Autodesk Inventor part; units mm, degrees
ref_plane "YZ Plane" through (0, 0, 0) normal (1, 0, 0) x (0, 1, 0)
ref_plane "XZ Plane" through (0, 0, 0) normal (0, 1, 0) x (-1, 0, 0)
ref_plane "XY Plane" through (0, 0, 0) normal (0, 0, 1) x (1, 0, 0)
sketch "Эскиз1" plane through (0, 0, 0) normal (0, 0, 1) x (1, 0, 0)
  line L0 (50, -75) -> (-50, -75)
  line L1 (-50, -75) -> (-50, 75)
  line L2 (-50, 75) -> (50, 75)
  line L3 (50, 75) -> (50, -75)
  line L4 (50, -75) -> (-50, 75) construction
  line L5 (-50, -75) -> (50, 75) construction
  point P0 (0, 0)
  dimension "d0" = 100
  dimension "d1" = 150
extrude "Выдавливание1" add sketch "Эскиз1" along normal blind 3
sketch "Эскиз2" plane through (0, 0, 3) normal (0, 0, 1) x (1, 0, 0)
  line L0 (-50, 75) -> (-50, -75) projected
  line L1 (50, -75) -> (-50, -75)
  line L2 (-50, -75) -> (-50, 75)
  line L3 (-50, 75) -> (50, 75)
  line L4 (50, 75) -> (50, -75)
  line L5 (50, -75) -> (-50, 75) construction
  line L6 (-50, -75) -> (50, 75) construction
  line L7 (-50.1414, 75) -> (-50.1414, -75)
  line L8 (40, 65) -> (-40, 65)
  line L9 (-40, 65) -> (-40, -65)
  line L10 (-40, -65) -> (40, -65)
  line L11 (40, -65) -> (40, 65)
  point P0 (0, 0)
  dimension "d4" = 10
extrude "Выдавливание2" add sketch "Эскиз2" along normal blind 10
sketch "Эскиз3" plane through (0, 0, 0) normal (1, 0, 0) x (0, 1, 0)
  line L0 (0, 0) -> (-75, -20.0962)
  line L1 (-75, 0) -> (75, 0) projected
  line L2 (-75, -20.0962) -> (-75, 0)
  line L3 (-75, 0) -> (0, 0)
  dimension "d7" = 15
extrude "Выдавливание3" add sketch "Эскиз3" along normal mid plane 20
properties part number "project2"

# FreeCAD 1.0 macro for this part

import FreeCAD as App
import Part
import Sketcher

V = App.Vector
Q = App.Units.Quantity

doc = App.newDocument("Part")
params = doc.addObject("Spreadsheet::Sheet", "Params")
for row, (alias, value) in enumerate([
    ("sketch1_width", "100 mm"),
    ("sketch1_height", "150 mm"),
    ("pad1_length", "3 mm"),
    ("sketch2_width", "100 mm"),
    ("sketch2_height", "150 mm"),
    ("pad2_length", "10 mm"),
    ("sketch3_width", "75 mm"),
    ("pad3_length", "20 mm"),
], start=1):
    params.set(f"A{row}", alias)
    params.set(f"B{row}", "=" + value)
    params.setAlias(f"B{row}", alias)

body = doc.addObject("PartDesign::Body", "Body")

# Sketch on XY plane
sketch1 = body.newObject("Sketcher::SketchObject", "Sketch")
sketch1.AttachmentSupport = (doc.getObject("XY_Plane"), [""])
sketch1.MapMode = "FlatFace"
sketch1.addGeometry(Part.LineSegment(V(-50, -75, 0), V(50, -75, 0)), False)
sketch1.addGeometry(Part.LineSegment(V(50, -75, 0), V(50, 75, 0)), False)
sketch1.addGeometry(Part.LineSegment(V(50, 75, 0), V(-50, 75, 0)), False)
sketch1.addGeometry(Part.LineSegment(V(-50, 75, 0), V(-50, -75, 0)), False)
sketch1.addConstraint(Sketcher.Constraint("Coincident", 0, 2, 1, 1))
sketch1.addConstraint(Sketcher.Constraint("Coincident", 1, 2, 2, 1))
sketch1.addConstraint(Sketcher.Constraint("Coincident", 2, 2, 3, 1))
sketch1.addConstraint(Sketcher.Constraint("Coincident", 3, 2, 0, 1))
sketch1.addConstraint(Sketcher.Constraint("Horizontal", 0))
sketch1.addConstraint(Sketcher.Constraint("Vertical", 1))
sketch1.addConstraint(Sketcher.Constraint("Horizontal", 2))
sketch1.addConstraint(Sketcher.Constraint("Vertical", 3))
sketch1.addConstraint(Sketcher.Constraint("Symmetric", 0, 2, 2, 2, -1, 1))
sketch1.addConstraint(Sketcher.Constraint("DistanceX", 0, 1, 0, 2, 100.0))
sketch1.addConstraint(Sketcher.Constraint("DistanceY", 1, 1, 1, 2, 150.0))
sketch1.setExpression("Constraints[9]", "Params.sketch1_width")
sketch1.setExpression("Constraints[10]", "Params.sketch1_height")
pad1 = body.newObject("PartDesign::Pad", "Pad")
pad1.Profile = sketch1
pad1.setExpression("Length", "Params.pad1_length")

# Sketch on XY plane
sketch2 = body.newObject("Sketcher::SketchObject", "Sketch001")
sketch2.AttachmentSupport = (doc.getObject("XY_Plane"), [""])
sketch2.MapMode = "FlatFace"
sketch2.AttachmentOffset = App.Placement(V(0, 0, 3), App.Rotation())
sketch2.addGeometry(Part.LineSegment(V(50, 75, 0), V(-50, 75, 0)), False)
sketch2.addGeometry(Part.LineSegment(V(-50, 75, 0), V(-50, -75, 0)), False)
sketch2.addGeometry(Part.LineSegment(V(-50, -75, 0), V(50, -75, 0)), False)
sketch2.addGeometry(Part.LineSegment(V(50, -75, 0), V(50, 75, 0)), False)
sketch2.addGeometry(Part.LineSegment(V(-40, 65, 0), V(40, 65, 0)), False)
sketch2.addGeometry(Part.LineSegment(V(40, 65, 0), V(40, -65, 0)), False)
sketch2.addGeometry(Part.LineSegment(V(40, -65, 0), V(-40, -65, 0)), False)
sketch2.addGeometry(Part.LineSegment(V(-40, -65, 0), V(-40, 65, 0)), False)
sketch2.addConstraint(Sketcher.Constraint("Coincident", 0, 2, 1, 1))
sketch2.addConstraint(Sketcher.Constraint("Coincident", 1, 2, 2, 1))
sketch2.addConstraint(Sketcher.Constraint("Coincident", 2, 2, 3, 1))
sketch2.addConstraint(Sketcher.Constraint("Coincident", 3, 2, 0, 1))
sketch2.addConstraint(Sketcher.Constraint("Coincident", 4, 2, 5, 1))
sketch2.addConstraint(Sketcher.Constraint("Coincident", 5, 2, 6, 1))
sketch2.addConstraint(Sketcher.Constraint("Coincident", 6, 2, 7, 1))
sketch2.addConstraint(Sketcher.Constraint("Coincident", 7, 2, 4, 1))
sketch2.addConstraint(Sketcher.Constraint("Horizontal", 0))
sketch2.addConstraint(Sketcher.Constraint("Vertical", 1))
sketch2.addConstraint(Sketcher.Constraint("Horizontal", 2))
sketch2.addConstraint(Sketcher.Constraint("Vertical", 3))
sketch2.addConstraint(Sketcher.Constraint("Horizontal", 4))
sketch2.addConstraint(Sketcher.Constraint("Vertical", 5))
sketch2.addConstraint(Sketcher.Constraint("Horizontal", 6))
sketch2.addConstraint(Sketcher.Constraint("Vertical", 7))
sketch2.addConstraint(Sketcher.Constraint("Symmetric", 0, 2, 2, 2, -1, 1))
sketch2.addConstraint(Sketcher.Constraint("Symmetric", 4, 2, 6, 2, -1, 1))
sketch2.addConstraint(Sketcher.Constraint("DistanceX", 4, 2, 3, 2, 10.0))
sketch2.addConstraint(Sketcher.Constraint("DistanceY", 4, 2, 3, 2, 10.0))
sketch2.addConstraint(Sketcher.Constraint("DistanceX", 0, 2, 0, 1, 100.0))
sketch2.addConstraint(Sketcher.Constraint("DistanceY", 1, 2, 1, 1, 150.0))
sketch2.setExpression("Constraints[20]", "Params.sketch2_width")
sketch2.setExpression("Constraints[21]", "Params.sketch2_height")
pad2 = body.newObject("PartDesign::Pad", "Pad001")
pad2.Profile = sketch2
pad2.setExpression("Length", "Params.pad2_length")

# Sketch on YZ plane
sketch3 = body.newObject("Sketcher::SketchObject", "Sketch002")
sketch3.AttachmentSupport = (doc.getObject("YZ_Plane"), [""])
sketch3.MapMode = "FlatFace"
sketch3.addGeometry(Part.LineSegment(V(-75, -20, 0), V(0, 0, 0)), False)
sketch3.addGeometry(Part.LineSegment(V(0, 0, 0), V(-75, 0, 0)), False)
sketch3.addGeometry(Part.LineSegment(V(-75, 0, 0), V(-75, -20, 0)), False)
sketch3.addConstraint(Sketcher.Constraint("Coincident", 0, 2, 1, 1))
sketch3.addConstraint(Sketcher.Constraint("Coincident", 1, 2, 2, 1))
sketch3.addConstraint(Sketcher.Constraint("Coincident", 2, 2, 0, 1))
sketch3.addConstraint(Sketcher.Constraint("Horizontal", 1))
sketch3.addConstraint(Sketcher.Constraint("Vertical", 2))
sketch3.addConstraint(Sketcher.Constraint("Coincident", 0, 2, -1, 1))
sketch3.addConstraint(Sketcher.Constraint("Angle", 0, Q("15 deg")))
sketch3.addConstraint(Sketcher.Constraint("DistanceX", 1, 2, 1, 1, 75.0))
sketch3.setExpression("Constraints[7]", "Params.sketch3_width")
pad3 = body.newObject("PartDesign::Pad", "Pad002")
pad3.Profile = sketch3
pad3.setExpression("Length", "Params.pad3_length")
pad3.Midplane = True

doc.recompute()
